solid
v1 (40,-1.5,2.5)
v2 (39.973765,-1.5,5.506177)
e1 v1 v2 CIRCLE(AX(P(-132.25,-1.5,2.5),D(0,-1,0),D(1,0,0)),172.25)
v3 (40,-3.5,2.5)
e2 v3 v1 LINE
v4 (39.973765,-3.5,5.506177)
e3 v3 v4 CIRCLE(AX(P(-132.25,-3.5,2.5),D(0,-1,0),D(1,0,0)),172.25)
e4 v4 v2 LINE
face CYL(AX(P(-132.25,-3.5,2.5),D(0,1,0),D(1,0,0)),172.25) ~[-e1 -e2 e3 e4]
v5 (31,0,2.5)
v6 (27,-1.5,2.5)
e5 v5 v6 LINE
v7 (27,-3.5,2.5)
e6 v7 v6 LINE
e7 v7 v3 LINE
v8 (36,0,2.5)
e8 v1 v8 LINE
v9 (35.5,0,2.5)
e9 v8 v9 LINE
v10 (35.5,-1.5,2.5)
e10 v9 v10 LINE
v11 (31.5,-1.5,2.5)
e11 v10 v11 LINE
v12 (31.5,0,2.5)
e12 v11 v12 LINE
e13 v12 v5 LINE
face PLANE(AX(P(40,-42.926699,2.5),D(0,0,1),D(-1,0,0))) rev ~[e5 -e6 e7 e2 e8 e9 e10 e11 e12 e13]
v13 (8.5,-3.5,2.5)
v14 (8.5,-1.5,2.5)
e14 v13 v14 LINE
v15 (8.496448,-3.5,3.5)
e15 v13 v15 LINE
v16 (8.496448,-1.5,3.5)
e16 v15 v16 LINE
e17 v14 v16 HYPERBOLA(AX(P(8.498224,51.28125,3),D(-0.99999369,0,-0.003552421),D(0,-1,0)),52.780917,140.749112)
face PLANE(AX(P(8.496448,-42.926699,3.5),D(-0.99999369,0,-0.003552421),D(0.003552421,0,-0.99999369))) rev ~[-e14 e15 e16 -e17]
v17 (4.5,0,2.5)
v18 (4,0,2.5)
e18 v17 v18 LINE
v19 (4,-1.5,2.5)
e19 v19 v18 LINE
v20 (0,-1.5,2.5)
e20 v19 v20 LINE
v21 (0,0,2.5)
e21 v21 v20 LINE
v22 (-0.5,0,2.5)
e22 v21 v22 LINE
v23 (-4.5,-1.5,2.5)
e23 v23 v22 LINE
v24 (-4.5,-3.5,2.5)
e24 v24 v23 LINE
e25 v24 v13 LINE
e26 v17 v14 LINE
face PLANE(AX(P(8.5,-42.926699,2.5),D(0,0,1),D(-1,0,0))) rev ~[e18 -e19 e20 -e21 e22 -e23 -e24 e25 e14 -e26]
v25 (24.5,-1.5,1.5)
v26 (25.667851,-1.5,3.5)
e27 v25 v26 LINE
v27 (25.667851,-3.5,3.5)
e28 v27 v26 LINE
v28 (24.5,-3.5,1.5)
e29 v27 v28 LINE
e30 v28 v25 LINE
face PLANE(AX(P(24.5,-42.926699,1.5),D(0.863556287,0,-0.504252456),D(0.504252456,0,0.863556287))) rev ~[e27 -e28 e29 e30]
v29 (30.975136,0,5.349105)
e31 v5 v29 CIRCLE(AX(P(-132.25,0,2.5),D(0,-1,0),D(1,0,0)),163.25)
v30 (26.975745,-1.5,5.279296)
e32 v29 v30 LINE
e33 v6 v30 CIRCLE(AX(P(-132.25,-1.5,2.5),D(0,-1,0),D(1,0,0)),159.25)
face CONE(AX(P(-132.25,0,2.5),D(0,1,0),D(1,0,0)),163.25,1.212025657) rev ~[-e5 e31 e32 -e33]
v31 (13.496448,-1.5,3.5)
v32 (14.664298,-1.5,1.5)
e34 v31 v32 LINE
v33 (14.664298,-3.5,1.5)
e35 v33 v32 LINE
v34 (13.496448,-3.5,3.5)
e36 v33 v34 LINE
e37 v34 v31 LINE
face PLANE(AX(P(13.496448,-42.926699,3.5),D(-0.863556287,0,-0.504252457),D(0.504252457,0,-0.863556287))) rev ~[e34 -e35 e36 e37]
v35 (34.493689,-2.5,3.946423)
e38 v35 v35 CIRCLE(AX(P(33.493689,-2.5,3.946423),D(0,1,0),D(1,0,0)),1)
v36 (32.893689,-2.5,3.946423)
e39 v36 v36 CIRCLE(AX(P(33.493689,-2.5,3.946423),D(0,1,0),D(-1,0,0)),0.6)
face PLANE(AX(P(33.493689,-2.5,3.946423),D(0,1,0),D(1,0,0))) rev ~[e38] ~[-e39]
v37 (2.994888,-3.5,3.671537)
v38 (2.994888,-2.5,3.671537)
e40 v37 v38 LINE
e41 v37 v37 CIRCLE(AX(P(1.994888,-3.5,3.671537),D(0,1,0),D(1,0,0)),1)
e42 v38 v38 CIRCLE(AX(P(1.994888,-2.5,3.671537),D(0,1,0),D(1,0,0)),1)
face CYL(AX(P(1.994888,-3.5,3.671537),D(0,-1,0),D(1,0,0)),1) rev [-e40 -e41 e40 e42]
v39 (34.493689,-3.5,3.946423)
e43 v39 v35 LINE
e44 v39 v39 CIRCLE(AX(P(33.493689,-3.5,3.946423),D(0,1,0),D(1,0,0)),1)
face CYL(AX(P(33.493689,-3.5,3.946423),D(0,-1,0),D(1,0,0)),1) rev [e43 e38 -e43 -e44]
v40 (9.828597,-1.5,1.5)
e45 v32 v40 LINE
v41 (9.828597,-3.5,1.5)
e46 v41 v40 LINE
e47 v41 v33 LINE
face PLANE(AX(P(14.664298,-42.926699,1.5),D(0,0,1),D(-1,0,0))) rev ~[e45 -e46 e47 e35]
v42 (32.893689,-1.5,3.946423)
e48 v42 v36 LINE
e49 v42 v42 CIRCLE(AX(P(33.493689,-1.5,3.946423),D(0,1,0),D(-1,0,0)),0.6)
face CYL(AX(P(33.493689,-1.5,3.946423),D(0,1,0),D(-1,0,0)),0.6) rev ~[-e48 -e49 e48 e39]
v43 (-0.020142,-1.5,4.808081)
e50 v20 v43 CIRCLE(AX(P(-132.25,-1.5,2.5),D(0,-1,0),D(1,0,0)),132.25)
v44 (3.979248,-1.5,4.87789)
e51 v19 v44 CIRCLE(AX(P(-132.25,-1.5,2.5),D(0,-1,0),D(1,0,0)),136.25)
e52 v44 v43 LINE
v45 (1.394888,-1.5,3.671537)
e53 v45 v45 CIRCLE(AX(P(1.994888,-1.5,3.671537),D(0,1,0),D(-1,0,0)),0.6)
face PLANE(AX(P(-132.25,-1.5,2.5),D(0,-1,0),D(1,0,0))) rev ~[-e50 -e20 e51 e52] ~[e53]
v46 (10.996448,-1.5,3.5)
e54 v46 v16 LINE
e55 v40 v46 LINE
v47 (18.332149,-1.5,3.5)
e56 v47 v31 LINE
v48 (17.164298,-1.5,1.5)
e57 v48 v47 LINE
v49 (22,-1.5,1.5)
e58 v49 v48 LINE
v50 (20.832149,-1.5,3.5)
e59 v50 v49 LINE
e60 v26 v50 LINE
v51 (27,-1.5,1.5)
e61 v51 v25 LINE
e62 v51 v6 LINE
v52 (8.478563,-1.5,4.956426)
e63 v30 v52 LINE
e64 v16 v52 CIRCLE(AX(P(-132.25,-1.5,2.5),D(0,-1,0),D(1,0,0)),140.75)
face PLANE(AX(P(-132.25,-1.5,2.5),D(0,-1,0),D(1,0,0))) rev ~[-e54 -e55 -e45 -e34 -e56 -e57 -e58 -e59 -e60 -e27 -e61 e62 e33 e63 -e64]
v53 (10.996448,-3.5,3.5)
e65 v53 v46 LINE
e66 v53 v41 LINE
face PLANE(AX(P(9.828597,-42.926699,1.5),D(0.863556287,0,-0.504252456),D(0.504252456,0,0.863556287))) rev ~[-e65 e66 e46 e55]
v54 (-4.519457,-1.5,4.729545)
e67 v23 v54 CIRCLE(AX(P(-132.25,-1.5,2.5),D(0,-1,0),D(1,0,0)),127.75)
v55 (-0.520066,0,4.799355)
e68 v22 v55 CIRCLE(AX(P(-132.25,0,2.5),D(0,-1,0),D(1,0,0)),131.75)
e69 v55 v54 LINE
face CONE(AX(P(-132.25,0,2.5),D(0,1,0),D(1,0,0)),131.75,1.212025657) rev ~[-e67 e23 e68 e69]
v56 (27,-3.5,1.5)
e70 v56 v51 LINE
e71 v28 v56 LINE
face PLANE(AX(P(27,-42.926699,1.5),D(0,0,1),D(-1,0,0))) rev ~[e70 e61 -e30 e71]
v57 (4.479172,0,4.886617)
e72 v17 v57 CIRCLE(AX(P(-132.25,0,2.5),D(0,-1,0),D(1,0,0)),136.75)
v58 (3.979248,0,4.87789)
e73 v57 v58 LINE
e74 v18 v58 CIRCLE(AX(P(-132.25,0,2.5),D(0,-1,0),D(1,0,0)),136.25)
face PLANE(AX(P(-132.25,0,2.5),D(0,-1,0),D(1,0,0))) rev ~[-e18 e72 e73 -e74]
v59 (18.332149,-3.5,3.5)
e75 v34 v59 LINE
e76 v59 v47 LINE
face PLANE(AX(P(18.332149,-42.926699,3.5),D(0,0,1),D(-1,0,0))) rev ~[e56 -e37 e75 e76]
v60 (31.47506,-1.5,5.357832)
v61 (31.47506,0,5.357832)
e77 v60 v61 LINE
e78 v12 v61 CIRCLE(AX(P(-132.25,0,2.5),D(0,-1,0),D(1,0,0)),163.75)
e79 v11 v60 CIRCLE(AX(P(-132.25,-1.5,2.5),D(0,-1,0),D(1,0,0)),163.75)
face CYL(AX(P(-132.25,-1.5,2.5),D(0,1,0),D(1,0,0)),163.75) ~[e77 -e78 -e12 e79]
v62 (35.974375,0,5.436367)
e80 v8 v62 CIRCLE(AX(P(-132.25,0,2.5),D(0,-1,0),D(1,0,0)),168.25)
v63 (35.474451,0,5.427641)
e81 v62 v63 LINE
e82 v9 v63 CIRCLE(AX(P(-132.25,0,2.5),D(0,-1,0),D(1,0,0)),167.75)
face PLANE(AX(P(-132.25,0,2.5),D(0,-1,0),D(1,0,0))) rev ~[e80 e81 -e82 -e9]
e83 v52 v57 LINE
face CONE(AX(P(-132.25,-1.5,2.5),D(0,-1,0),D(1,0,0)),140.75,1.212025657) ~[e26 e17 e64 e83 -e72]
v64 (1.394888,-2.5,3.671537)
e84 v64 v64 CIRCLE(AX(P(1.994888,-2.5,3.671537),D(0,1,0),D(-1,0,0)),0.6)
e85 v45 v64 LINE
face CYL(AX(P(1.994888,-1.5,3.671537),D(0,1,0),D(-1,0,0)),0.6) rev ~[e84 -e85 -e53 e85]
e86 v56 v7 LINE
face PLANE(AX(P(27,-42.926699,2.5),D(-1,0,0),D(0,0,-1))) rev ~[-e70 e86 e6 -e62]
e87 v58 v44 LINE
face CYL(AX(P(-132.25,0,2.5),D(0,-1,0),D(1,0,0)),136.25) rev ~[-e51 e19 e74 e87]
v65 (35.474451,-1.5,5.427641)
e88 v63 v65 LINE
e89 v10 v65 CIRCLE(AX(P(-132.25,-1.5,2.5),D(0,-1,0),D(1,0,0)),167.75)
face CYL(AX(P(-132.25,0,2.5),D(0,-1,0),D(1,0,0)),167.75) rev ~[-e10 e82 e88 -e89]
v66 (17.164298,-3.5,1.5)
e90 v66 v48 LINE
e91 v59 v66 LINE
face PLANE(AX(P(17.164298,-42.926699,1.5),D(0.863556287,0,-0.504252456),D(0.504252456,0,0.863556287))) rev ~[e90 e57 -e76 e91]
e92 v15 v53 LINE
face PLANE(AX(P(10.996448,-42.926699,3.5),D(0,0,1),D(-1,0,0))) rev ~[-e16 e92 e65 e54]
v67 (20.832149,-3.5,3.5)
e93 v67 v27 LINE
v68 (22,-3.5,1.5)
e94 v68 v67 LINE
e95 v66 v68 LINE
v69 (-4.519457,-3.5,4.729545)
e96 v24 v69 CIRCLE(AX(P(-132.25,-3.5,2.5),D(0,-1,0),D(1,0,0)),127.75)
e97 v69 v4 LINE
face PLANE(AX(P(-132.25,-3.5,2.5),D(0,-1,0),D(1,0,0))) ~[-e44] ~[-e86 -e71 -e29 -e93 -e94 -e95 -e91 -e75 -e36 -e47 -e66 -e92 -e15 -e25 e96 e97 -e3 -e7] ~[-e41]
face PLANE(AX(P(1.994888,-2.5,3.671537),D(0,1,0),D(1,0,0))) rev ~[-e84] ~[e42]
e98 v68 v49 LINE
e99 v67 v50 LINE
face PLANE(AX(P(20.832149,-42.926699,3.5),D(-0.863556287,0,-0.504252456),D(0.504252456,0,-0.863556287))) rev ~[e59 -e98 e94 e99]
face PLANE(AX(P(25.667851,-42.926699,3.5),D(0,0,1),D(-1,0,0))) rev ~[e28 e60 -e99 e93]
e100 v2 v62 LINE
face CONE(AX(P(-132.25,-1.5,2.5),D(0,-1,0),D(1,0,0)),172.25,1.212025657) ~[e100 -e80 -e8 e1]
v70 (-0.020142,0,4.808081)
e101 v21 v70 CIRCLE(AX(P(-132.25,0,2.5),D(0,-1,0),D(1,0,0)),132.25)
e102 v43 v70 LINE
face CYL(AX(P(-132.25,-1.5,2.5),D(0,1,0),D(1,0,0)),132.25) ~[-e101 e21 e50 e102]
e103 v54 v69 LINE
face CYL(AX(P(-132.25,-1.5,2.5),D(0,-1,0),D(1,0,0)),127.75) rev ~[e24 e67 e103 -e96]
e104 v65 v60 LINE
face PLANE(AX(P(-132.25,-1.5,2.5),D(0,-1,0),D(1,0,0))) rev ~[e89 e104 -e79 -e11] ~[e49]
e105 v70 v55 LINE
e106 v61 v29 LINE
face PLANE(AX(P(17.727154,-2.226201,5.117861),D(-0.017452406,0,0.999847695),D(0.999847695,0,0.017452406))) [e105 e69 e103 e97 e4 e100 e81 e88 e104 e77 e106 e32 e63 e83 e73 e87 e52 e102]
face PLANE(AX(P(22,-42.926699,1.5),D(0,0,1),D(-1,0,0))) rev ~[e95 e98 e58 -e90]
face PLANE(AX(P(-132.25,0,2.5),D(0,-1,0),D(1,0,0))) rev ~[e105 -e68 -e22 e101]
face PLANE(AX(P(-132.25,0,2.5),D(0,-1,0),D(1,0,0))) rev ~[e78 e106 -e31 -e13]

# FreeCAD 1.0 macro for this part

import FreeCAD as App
import Part
import Sketcher

V = App.Vector
Q = App.Units.Quantity


def add_polygon(sketch, points):
    """Adds a closed chain of lines whose ends are joined by coincident constraints."""
    first, n = sketch.GeometryCount, len(points)
    for a, b in zip(points, points[1:] + points[:1]):
        sketch.addGeometry(Part.LineSegment(App.Vector(*a, 0), App.Vector(*b, 0)), False)
    for i in range(n):
        sketch.addConstraint(Sketcher.Constraint("Coincident", first + i, 2, first + (i + 1) % n, 1))

doc = App.newDocument("Part")
body = doc.addObject("PartDesign::Body", "Body")

# Sketch on XY plane
sketch1 = body.newObject("Sketcher::SketchObject", "Sketch")
sketch1.AttachmentSupport = (doc.getObject("XY_Plane"), [""])
sketch1.MapMode = "FlatFace"
add_polygon(sketch1, [(17.8, -1.5), (8.5, -1.5), (4.5, 0), (4, 0), (4, -1.5), (0, -1.5), (0, 0), (-0.5, 0), (-4.5, -1.5), (-4.5, -3.5), (17.8, -3.5)])  # lines 0-10
sketch1.addConstraint([
    Sketcher.Constraint("Horizontal", 0),
    Sketcher.Constraint("Horizontal", 2),
    Sketcher.Constraint("Vertical", 3),
    Sketcher.Constraint("Horizontal", 4),
    Sketcher.Constraint("Vertical", 5),
    Sketcher.Constraint("Horizontal", 6),
    Sketcher.Constraint("Vertical", 8),
    Sketcher.Constraint("Horizontal", 9),
    Sketcher.Constraint("Vertical", 10),
    Sketcher.Constraint("Coincident", 5, 2, -1, 1),
    Sketcher.Constraint("PointOnObject", 1, 2, -1),
    Sketcher.Constraint("Horizontal", 0, 2, 3, 2),
    Sketcher.Constraint("Horizontal", 4, 2, 7, 2),
    Sketcher.Constraint("Equal", 2, 6),
    Sketcher.Constraint("Equal", 1, 7),
    Sketcher.Constraint("DistanceX", 4, 2, 4, 1, Q("4 mm")),
    Sketcher.Constraint("DistanceY", 8, 2, 8, 1, Q("2 mm")),
    Sketcher.Constraint("DistanceX", 2, 2, 2, 1, Q("0.5 mm")),
    Sketcher.Constraint("DistanceY", 3, 2, 3, 1, Q("1.5 mm")),
    Sketcher.Constraint("DistanceX", 1, 2, 0, 2, Q("4 mm")),
    Sketcher.Constraint("DistanceX", 0, 2, 0, 1, Q("9.25 mm")),
])
pad1 = body.newObject("PartDesign::Pad", "Pad")
pad1.Profile = sketch1
pad1.Length = 2.5

# Sketch on XZ plane
sketch2 = body.newObject("Sketcher::SketchObject", "Sketch001")
sketch2.AttachmentSupport = (doc.getObject("XZ_Plane"), [""])
sketch2.MapMode = "FlatFace"
sketch2.AttachmentOffset = App.Placement(V(0, 0, 1.5), App.Rotation())
sketch2.addGeometry(Part.Circle(V(2, 1.2, 0), V(0, 0, 1), 0.6), False)
sketch2.addConstraint([
    Sketcher.Constraint("Diameter", 0, Q("1.2 mm")),
    Sketcher.Constraint("DistanceX", -1, 1, 0, 3, Q("2 mm")),
    Sketcher.Constraint("DistanceY", -1, 1, 0, 3, Q("1.25 mm")),
])
pocket1 = body.newObject("PartDesign::Pocket", "Pocket")
pocket1.Profile = sketch2
pocket1.Type = "ThroughAll"
pocket1.Reversed = True

# Sketch on XZ plane
sketch3 = body.newObject("Sketcher::SketchObject", "Sketch002")
sketch3.AttachmentSupport = (doc.getObject("XZ_Plane"), [""])
sketch3.MapMode = "FlatFace"
sketch3.AttachmentOffset = App.Placement(V(0, 0, 3.5), App.Rotation())
sketch3.addGeometry(Part.Circle(V(2, 1.2, 0), V(0, 0, 1), 1), False)
sketch3.addConstraint([
    Sketcher.Constraint("Diameter", 0, Q("2 mm")),
    Sketcher.Constraint("DistanceX", -1, 1, 0, 3, Q("2 mm")),
    Sketcher.Constraint("DistanceY", -1, 1, 0, 3, Q("1.25 mm")),
])
pocket2 = body.newObject("PartDesign::Pocket", "Pocket001")
pocket2.Profile = sketch3
pocket2.Length = 1
body2 = doc.addObject("PartDesign::Body", "Body001")
doc.recompute()

body2.BaseFeature = body
doc.recompute()

mirroring = doc.addObject("Part::Mirroring", "Mirroring")
mirroring.Source = body
mirroring.Base = V(17.75, 0, 2.5)
mirroring.Normal = V(1, 0, 0)
body3 = doc.addObject("PartDesign::Body", "Body002")
body3.BaseFeature = mirroring
boolean = body2.newObject("PartDesign::Boolean", "Boolean")
boolean.Type = "Fuse"
boolean.addObjects([body3])
doc.recompute()

# Sketch on XY plane
sketch4 = body2.newObject("Sketcher::SketchObject", "Sketch003")
sketch4.AttachmentSupport = (doc.getObject("XY_Plane001"), [""])
sketch4.MapMode = "FlatFace"
sketch4.AttachmentOffset = App.Placement(V(0, 0, 2.5), App.Rotation())
add_polygon(sketch4, [(0, 0), (-0.5, 0), (-4.5, -1.5), (-4.5, -3.5), (40, -3.5), (40, -1.5), (36, 0), (35.5, 0), (35.5, -1.5), (31.5, -1.5), (31.5, 0), (31, 0), (27, -1.5), (8.5, -1.5), (4.5, 0), (4, 0), (4, -1.5), (0, -1.5)])  # lines 0-17
sketch4.addGeometry(Part.LineSegment(V(-132.2, 0, 0), V(-132.2, -3.5, 0)), True)  # axis
sketch4.addConstraint([
    Sketcher.Constraint("Horizontal", 0),
    Sketcher.Constraint("Vertical", 2),
    Sketcher.Constraint("Horizontal", 3),
    Sketcher.Constraint("Vertical", 4),
    Sketcher.Constraint("Horizontal", 6),
    Sketcher.Constraint("Vertical", 7),
    Sketcher.Constraint("Horizontal", 8),
    Sketcher.Constraint("Vertical", 9),
    Sketcher.Constraint("Horizontal", 10),
    Sketcher.Constraint("Horizontal", 12),
    Sketcher.Constraint("Horizontal", 14),
    Sketcher.Constraint("Vertical", 15),
    Sketcher.Constraint("Horizontal", 16),
    Sketcher.Constraint("Vertical", 17),
    Sketcher.Constraint("Vertical", 18),
    Sketcher.Constraint("Coincident", 17, 2, -1, 1),
    Sketcher.Constraint("PointOnObject", 5, 2, -1),
    Sketcher.Constraint("PointOnObject", 9, 2, -1),
    Sketcher.Constraint("PointOnObject", 13, 2, -1),
    Sketcher.Constraint("PointOnObject", 18, 1, -1),
    Sketcher.Constraint("Parallel", 1, 11),
    Sketcher.Constraint("Parallel", 5, 13),
    Sketcher.Constraint("Horizontal", 1, 2, 4, 2),
    Sketcher.Constraint("Horizontal", 4, 2, 7, 2),
    Sketcher.Constraint("Horizontal", 8, 2, 11, 2),
    Sketcher.Constraint("Horizontal", 12, 2, 15, 2),
    Sketcher.Constraint("Horizontal", 3, 2, 18, 2),
    Sketcher.Constraint("Equal", 0, 6),
    Sketcher.Constraint("Equal", 6, 10),
    Sketcher.Constraint("Equal", 10, 14),
    Sketcher.Constraint("Equal", 8, 16),
    Sketcher.Constraint("Equal", 1, 5),
    Sketcher.Constraint("DistanceX", 8, 2, 8, 1, Q("4 mm")),
    Sketcher.Constraint("DistanceY", 2, 2, 2, 1, Q("2 mm")),
    Sketcher.Constraint("DistanceX", 0, 2, 0, 1, Q("0.5 mm")),
    Sketcher.Constraint("DistanceX", 3, 1, 3, 2, Q("44.5 mm")),
    Sketcher.Constraint("DistanceX", 12, 2, 12, 1, Q("18.5 mm")),
    Sketcher.Constraint("DistanceY", 7, 2, 7, 1, Q("1.5 mm")),
    Sketcher.Constraint("DistanceX", 18, 1, -1, 1, Q("132.25 mm")),
])
revolution = body2.newObject("PartDesign::Revolution", "Revolution")
revolution.Profile = sketch4
revolution.ReferenceAxis = (sketch4, ["Axis0"])
revolution.Angle = 1

# Sketch on XZ plane
sketch5 = body2.newObject("Sketcher::SketchObject", "Sketch004")
sketch5.AttachmentSupport = (doc.getObject("XZ_Plane001"), [""])
sketch5.MapMode = "FlatFace"
sketch5.AttachmentOffset = App.Placement(V(0, 0, 1.5), App.Rotation())
sketch5.addGeometry([
    Part.Circle(V(2, 3.7, 0), V(0, 0, 1), 0.6),
    Part.Circle(V(33.5, 3.9, 0), V(0, 0, 1), 0.6),
], False)
sketch5.addConstraint([
    Sketcher.Constraint("Equal", 0, 1),
    Sketcher.Constraint("Diameter", 0, Q("1.2 mm")),
    Sketcher.Constraint("DistanceX", 0, 3, 1, 3, Q("31.498801 mm")),
    Sketcher.Constraint("DistanceX", -1, 1, 0, 3, Q("1.994888 mm")),
    Sketcher.Constraint("DistanceY", -1, 1, 0, 3, Q("3.671537 mm")),
    Sketcher.Constraint("DistanceY", -1, 1, 1, 3, Q("3.946423 mm")),
])
pocket3 = body2.newObject("PartDesign::Pocket", "Pocket002")
pocket3.Profile = sketch5
pocket3.Type = "ThroughAll"
pocket3.Reversed = True

# Sketch on XZ plane
sketch6 = body2.newObject("Sketcher::SketchObject", "Sketch005")
sketch6.AttachmentSupport = (doc.getObject("XZ_Plane001"), [""])
sketch6.MapMode = "FlatFace"
sketch6.AttachmentOffset = App.Placement(V(0, 0, 3.5), App.Rotation())
sketch6.addGeometry([
    Part.Circle(V(2, 3.7, 0), V(0, 0, 1), 1),
    Part.Circle(V(33.5, 3.9, 0), V(0, 0, 1), 1),
], False)
sketch6.addConstraint([
    Sketcher.Constraint("Equal", 0, 1),
    Sketcher.Constraint("Diameter", 0, Q("2 mm")),
    Sketcher.Constraint("DistanceX", 0, 3, 1, 3, Q("31.498801 mm")),
    Sketcher.Constraint("DistanceX", -1, 1, 0, 3, Q("1.994888 mm")),
    Sketcher.Constraint("DistanceY", -1, 1, 0, 3, Q("3.671537 mm")),
    Sketcher.Constraint("DistanceY", -1, 1, 1, 3, Q("3.946423 mm")),
])
pocket4 = body2.newObject("PartDesign::Pocket", "Pocket003")
pocket4.Profile = sketch6
pocket4.Length = 1

# Sketch on XZ plane
sketch7 = body2.newObject("Sketcher::SketchObject", "Sketch006")
sketch7.AttachmentSupport = (doc.getObject("XZ_Plane001"), [""])
sketch7.MapMode = "FlatFace"
sketch7.AttachmentOffset = App.Placement(V(0, 0, 1.5), App.Rotation())
add_polygon(sketch7, [(27, 1.5), (27, 2.5), (40, 2.5), (40, 0), (-4.5, 0), (-4.5, 2.5), (8.5, 2.5), (8.5, 3.5), (11, 3.5), (9.8, 1.5), (14.7, 1.5), (13.5, 3.5), (18.3, 3.5), (17.2, 1.5), (22, 1.5), (20.8, 3.5), (25.7, 3.5), (24.5, 1.5)])  # lines 0-17
sketch7.addConstraint([
    Sketcher.Constraint("Vertical", 0),
    Sketcher.Constraint("Horizontal", 1),
    Sketcher.Constraint("Vertical", 2),
    Sketcher.Constraint("Horizontal", 3),
    Sketcher.Constraint("Vertical", 4),
    Sketcher.Constraint("Horizontal", 5),
    Sketcher.Constraint("Horizontal", 7),
    Sketcher.Constraint("Horizontal", 9),
    Sketcher.Constraint("Horizontal", 11),
    Sketcher.Constraint("Horizontal", 13),
    Sketcher.Constraint("Horizontal", 15),
    Sketcher.Constraint("Horizontal", 17),
    Sketcher.Constraint("PointOnObject", 2, 2, -1),
    Sketcher.Constraint("Parallel", 8, 12),
    Sketcher.Constraint("Parallel", 10, 14),
    Sketcher.Constraint("Parallel", 12, 16),
    Sketcher.Constraint("Horizontal", 1, 2, 4, 2),
    Sketcher.Constraint("Horizontal", 7, 2, 10, 2),
    Sketcher.Constraint("Horizontal", 9, 2, 12, 2),
    Sketcher.Constraint("Horizontal", 11, 2, 14, 2),
    Sketcher.Constraint("Horizontal", 13, 2, 16, 2),
    Sketcher.Constraint("Equal", 1, 5),
    Sketcher.Constraint("Equal", 9, 11),
    Sketcher.Constraint("Equal", 11, 13),
    Sketcher.Constraint("Equal", 13, 15),
    Sketcher.Constraint("Equal", 7, 17),
    Sketcher.Constraint("Equal", 17, 2),
    Sketcher.Constraint("Equal", 8, 10),
    Sketcher.Constraint("DistanceX", 1, 1, 1, 2, Q("13 mm")),
    Sketcher.Constraint("DistanceY", 0, 1, 0, 2, Q("1 mm")),
    Sketcher.Constraint("DistanceX", 3, 2, 3, 1, Q("44.5 mm")),
    Sketcher.Constraint("DistanceX", 7, 1, 7, 2, Q("2.5 mm")),
    Sketcher.Constraint("DistanceX", -1, 1, 0, 2, Q("27 mm")),
    Sketcher.Constraint("DistanceX", -1, 1, 13, 2, Q("22 mm")),
    Sketcher.Constraint("DistanceY", 5, 2, 6, 2, Q("1 mm")),
    Sketcher.Constraint("DistanceX", 9, 1, 9, 2, Q("4.835702 mm")),
])
pocket5 = body2.newObject("PartDesign::Pocket", "Pocket004")
pocket5.Profile = sketch7
pocket5.Type = "ThroughAll"
pocket5.Midplane = True
mirroring.Visibility = False

doc.recompute()
